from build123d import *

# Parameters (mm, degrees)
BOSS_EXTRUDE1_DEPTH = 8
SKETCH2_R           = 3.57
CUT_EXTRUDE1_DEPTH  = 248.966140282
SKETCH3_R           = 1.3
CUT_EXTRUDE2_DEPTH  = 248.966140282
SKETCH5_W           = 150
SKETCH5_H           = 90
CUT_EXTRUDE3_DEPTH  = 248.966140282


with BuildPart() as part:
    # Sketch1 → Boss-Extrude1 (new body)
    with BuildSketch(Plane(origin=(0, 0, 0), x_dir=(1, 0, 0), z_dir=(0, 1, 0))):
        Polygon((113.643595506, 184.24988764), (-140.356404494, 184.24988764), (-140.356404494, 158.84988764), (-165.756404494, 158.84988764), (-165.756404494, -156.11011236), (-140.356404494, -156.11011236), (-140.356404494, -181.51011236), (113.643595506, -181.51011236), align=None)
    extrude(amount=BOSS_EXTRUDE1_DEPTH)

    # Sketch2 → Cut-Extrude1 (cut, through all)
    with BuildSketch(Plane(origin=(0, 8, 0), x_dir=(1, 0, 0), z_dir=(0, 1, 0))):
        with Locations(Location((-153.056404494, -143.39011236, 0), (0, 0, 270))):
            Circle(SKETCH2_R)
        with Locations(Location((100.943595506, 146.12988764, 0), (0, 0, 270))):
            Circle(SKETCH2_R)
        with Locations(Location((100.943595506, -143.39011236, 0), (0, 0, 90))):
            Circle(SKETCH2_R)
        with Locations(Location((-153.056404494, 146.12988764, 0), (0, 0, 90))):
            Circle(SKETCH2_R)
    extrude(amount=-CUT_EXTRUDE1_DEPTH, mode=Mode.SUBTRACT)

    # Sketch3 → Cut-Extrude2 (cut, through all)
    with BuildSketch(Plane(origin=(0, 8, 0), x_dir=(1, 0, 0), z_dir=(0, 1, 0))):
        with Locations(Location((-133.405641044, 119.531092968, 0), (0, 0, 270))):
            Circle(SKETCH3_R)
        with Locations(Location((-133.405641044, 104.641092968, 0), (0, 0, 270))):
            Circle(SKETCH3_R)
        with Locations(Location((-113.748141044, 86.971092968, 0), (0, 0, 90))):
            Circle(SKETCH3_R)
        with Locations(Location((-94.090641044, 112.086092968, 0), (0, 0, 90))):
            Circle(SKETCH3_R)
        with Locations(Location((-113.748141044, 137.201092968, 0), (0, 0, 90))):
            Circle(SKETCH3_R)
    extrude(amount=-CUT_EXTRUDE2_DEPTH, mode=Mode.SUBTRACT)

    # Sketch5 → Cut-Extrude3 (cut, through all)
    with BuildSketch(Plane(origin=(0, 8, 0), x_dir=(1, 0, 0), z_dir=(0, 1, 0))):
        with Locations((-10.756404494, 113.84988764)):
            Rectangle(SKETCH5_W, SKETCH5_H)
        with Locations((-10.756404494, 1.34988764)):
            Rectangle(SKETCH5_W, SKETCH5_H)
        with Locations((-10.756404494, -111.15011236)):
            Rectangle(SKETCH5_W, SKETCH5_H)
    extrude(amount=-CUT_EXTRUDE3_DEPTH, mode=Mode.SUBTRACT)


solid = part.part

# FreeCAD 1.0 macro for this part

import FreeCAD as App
import Part
import Sketcher
Q = App.Units.Quantity


def add_polygon(sketch, points):
    """Adds a closed chain of lines whose ends are joined by coincident constraints."""
    first, n = sketch.GeometryCount, len(points)
    for a, b in zip(points, points[1:] + points[:1]):
        sketch.addGeometry(Part.LineSegment(App.Vector(*a, 0), App.Vector(*b, 0)), False)
    for i in range(n):
        sketch.addConstraint(Sketcher.Constraint("Coincident", first + i, 2, first + (i + 1) % n, 1))

doc = App.newDocument("Part")
body = doc.addObject("PartDesign::Body", "Body")

sketch1 = body.newObject("Sketcher::SketchObject", "Sketch")
sketch1.AttachmentSupport = (doc.getObject("XZ_Plane"), [""])
sketch1.MapMode = "FlatFace"
add_polygon(sketch1, [(113.643596, -184.249888), (-140.356404, -184.249888), (-140.356404, -158.849888), (-165.756404, -158.849888), (-165.756404, 156.110112), (-140.356404, 156.110112), (-140.356404, 181.510112), (113.643596, 181.510112)])
sketch1.addConstraint(Sketcher.Constraint("Horizontal", 0))
sketch1.addConstraint(Sketcher.Constraint("Vertical", 1))
sketch1.addConstraint(Sketcher.Constraint("Horizontal", 2))
sketch1.addConstraint(Sketcher.Constraint("Vertical", 3))
sketch1.addConstraint(Sketcher.Constraint("Horizontal", 4))
sketch1.addConstraint(Sketcher.Constraint("Vertical", 5))
sketch1.addConstraint(Sketcher.Constraint("Horizontal", 6))
sketch1.addConstraint(Sketcher.Constraint("Vertical", 7))
sketch1.addConstraint(Sketcher.Constraint("Vertical", 1, 2, 4, 2))
sketch1.addConstraint(Sketcher.Constraint("Equal", 4, 1))
sketch1.addConstraint(Sketcher.Constraint("Equal", 1, 5))
sketch1.addConstraint(Sketcher.Constraint("DistanceX", 0, 2, 0, 1, Q("254 mm")))
sketch1.addConstraint(Sketcher.Constraint("DistanceX", 2, 2, 2, 1, Q("25.4 mm")))
sketch1.addConstraint(Sketcher.Constraint("DistanceY", 3, 1, 3, 2, Q("314.96 mm")))
sketch1.addConstraint(Sketcher.Constraint("DistanceX", 0, 2, -1, 1, Q("140.356404 mm")))
sketch1.addConstraint(Sketcher.Constraint("DistanceY", 0, 2, -1, 1, Q("184.249888 mm")))
pad1 = body.newObject("PartDesign::Pad", "Pad")
pad1.Profile = sketch1
pad1.Length = 8
pad1.Reversed = True

sketch2 = body.newObject("Sketcher::SketchObject", "Sketch001")
sketch2.AttachmentSupport = (doc.getObject("XZ_Plane"), [""])
sketch2.MapMode = "FlatFace"
sketch2.AttachmentOffset = App.Placement(App.Vector(0, 0, -8), App.Rotation())
sketch2.addGeometry(Part.Circle(App.Vector(-153.056404, 143.390112, 0), App.Vector(0, 0, 1), 3.57), False)
sketch2.addGeometry(Part.Circle(App.Vector(100.943596, -146.129888, 0), App.Vector(0, 0, 1), 3.57), False)
sketch2.addGeometry(Part.Circle(App.Vector(100.943596, 143.390112, 0), App.Vector(0, 0, 1), 3.57), False)
sketch2.addGeometry(Part.Circle(App.Vector(-153.056404, -146.129888, 0), App.Vector(0, 0, 1), 3.57), False)
sketch2.addConstraint(Sketcher.Constraint("Equal", 0, 1))
sketch2.addConstraint(Sketcher.Constraint("Equal", 1, 2))
sketch2.addConstraint(Sketcher.Constraint("Equal", 2, 3))
sketch2.addConstraint(Sketcher.Constraint("Horizontal", 0, 3, 2, 3))
sketch2.addConstraint(Sketcher.Constraint("Horizontal", 1, 3, 3, 3))
sketch2.addConstraint(Sketcher.Constraint("Vertical", 1, 3, 2, 3))
sketch2.addConstraint(Sketcher.Constraint("Vertical", 0, 3, 3, 3))
sketch2.addConstraint(Sketcher.Constraint("Diameter", 0, Q("7.14 mm")))
sketch2.addConstraint(Sketcher.Constraint("DistanceX", 0, 3, 1, 3, Q("254 mm")))
sketch2.addConstraint(Sketcher.Constraint("DistanceY", 1, 3, 0, 3, Q("289.52 mm")))
sketch2.addConstraint(Sketcher.Constraint("DistanceX", 0, 3, -1, 1, Q("153.056404 mm")))
sketch2.addConstraint(Sketcher.Constraint("DistanceY", -1, 1, 0, 3, Q("143.390112 mm")))
pocket1 = body.newObject("PartDesign::Pocket", "Pocket")
pocket1.Profile = sketch2
pocket1.Type = "ThroughAll"
pocket1.Reversed = True

sketch3 = body.newObject("Sketcher::SketchObject", "Sketch002")
sketch3.AttachmentSupport = (doc.getObject("XZ_Plane"), [""])
sketch3.MapMode = "FlatFace"
sketch3.AttachmentOffset = App.Placement(App.Vector(0, 0, -8), App.Rotation())
sketch3.addGeometry(Part.Circle(App.Vector(-133.405641, -119.531093, 0), App.Vector(0, 0, 1), 1.3), False)
sketch3.addGeometry(Part.Circle(App.Vector(-133.405641, -104.641093, 0), App.Vector(0, 0, 1), 1.3), False)
sketch3.addGeometry(Part.Circle(App.Vector(-113.748141, -86.971093, 0), App.Vector(0, 0, 1), 1.3), False)
sketch3.addGeometry(Part.Circle(App.Vector(-94.090641, -112.086093, 0), App.Vector(0, 0, 1), 1.3), False)
sketch3.addGeometry(Part.Circle(App.Vector(-113.748141, -137.201093, 0), App.Vector(0, 0, 1), 1.3), False)
sketch3.addConstraint(Sketcher.Constraint("Equal", 0, 1))
sketch3.addConstraint(Sketcher.Constraint("Equal", 1, 2))
sketch3.addConstraint(Sketcher.Constraint("Equal", 2, 3))
sketch3.addConstraint(Sketcher.Constraint("Equal", 3, 4))
sketch3.addConstraint(Sketcher.Constraint("Vertical", 0, 3, 1, 3))
sketch3.addConstraint(Sketcher.Constraint("Vertical", 2, 3, 4, 3))
sketch3.addConstraint(Sketcher.Constraint("Diameter", 0, Q("2.6 mm")))
sketch3.addConstraint(Sketcher.Constraint("DistanceY", 0, 3, 1, 3, Q("14.89 mm")))
sketch3.addConstraint(Sketcher.Constraint("DistanceY", 1, 3, 2, 3, Q("17.67 mm")))
sketch3.addConstraint(Sketcher.Constraint("DistanceY", 4, 3, 0, 3, Q("17.67 mm")))
sketch3.addConstraint(Sketcher.Constraint("DistanceY", 3, 3, 2, 3, Q("25.115 mm")))
sketch3.addConstraint(Sketcher.Constraint("DistanceX", 0, 3, 3, 3, Q("39.315 mm")))
sketch3.addConstraint(Sketcher.Constraint("DistanceX", 1, 3, 2, 3, Q("19.6575 mm")))
sketch3.addConstraint(Sketcher.Constraint("DistanceX", 0, 3, -1, 1, Q("133.405641 mm")))
sketch3.addConstraint(Sketcher.Constraint("DistanceY", 0, 3, -1, 1, Q("119.531093 mm")))
pocket2 = body.newObject("PartDesign::Pocket", "Pocket001")
pocket2.Profile = sketch3
pocket2.Type = "ThroughAll"
pocket2.Reversed = True

sketch4 = body.newObject("Sketcher::SketchObject", "Sketch003")
sketch4.AttachmentSupport = (doc.getObject("XZ_Plane"), [""])
sketch4.MapMode = "FlatFace"
sketch4.AttachmentOffset = App.Placement(App.Vector(0, 0, -8), App.Rotation())
add_polygon(sketch4, [(-85.756404, -158.849888), (-85.756404, -68.849888), (64.243596, -68.849888), (64.243596, -158.849888)])
add_polygon(sketch4, [(-85.756404, -46.349888), (-85.756404, 43.650112), (64.243596, 43.650112), (64.243596, -46.349888)])
add_polygon(sketch4, [(-85.756404, 66.150112), (-85.756404, 156.150112), (64.243596, 156.150112), (64.243596, 66.150112)])
sketch4.addConstraint(Sketcher.Constraint("Vertical", 0))
sketch4.addConstraint(Sketcher.Constraint("Horizontal", 1))
sketch4.addConstraint(Sketcher.Constraint("Vertical", 2))
sketch4.addConstraint(Sketcher.Constraint("Horizontal", 3))
sketch4.addConstraint(Sketcher.Constraint("Vertical", 4))
sketch4.addConstraint(Sketcher.Constraint("Horizontal", 5))
sketch4.addConstraint(Sketcher.Constraint("Vertical", 6))
sketch4.addConstraint(Sketcher.Constraint("Horizontal", 7))
sketch4.addConstraint(Sketcher.Constraint("Vertical", 8))
sketch4.addConstraint(Sketcher.Constraint("Horizontal", 9))
sketch4.addConstraint(Sketcher.Constraint("Vertical", 10))
sketch4.addConstraint(Sketcher.Constraint("Horizontal", 11))
sketch4.addConstraint(Sketcher.Constraint("Vertical", 3, 2, 4, 2))
sketch4.addConstraint(Sketcher.Constraint("Vertical", 2, 2, 5, 2))
sketch4.addConstraint(Sketcher.Constraint("Vertical", 7, 2, 8, 2))
sketch4.addConstraint(Sketcher.Constraint("Vertical", 6, 2, 9, 2))
sketch4.addConstraint(Sketcher.Constraint("Equal", 2, 4))
sketch4.addConstraint(Sketcher.Constraint("Equal", 6, 8))
sketch4.addConstraint(Sketcher.Constraint("DistanceX", 1, 1, 1, 2, Q("150 mm")))
sketch4.addConstraint(Sketcher.Constraint("DistanceY", 0, 1, 0, 2, Q("90 mm")))
sketch4.addConstraint(Sketcher.Constraint("DistanceY", 0, 2, 8, 2, Q("225 mm")))
sketch4.addConstraint(Sketcher.Constraint("DistanceY", 0, 2, 4, 2, Q("112.5 mm")))
sketch4.addConstraint(Sketcher.Constraint("DistanceX", 0, 2, -1, 1, Q("85.756404 mm")))
sketch4.addConstraint(Sketcher.Constraint("DistanceY", 0, 2, -1, 1, Q("68.849888 mm")))
pocket3 = body.newObject("PartDesign::Pocket", "Pocket002")
pocket3.Profile = sketch4
pocket3.Type = "ThroughAll"
pocket3.Reversed = True

doc.recompute()
